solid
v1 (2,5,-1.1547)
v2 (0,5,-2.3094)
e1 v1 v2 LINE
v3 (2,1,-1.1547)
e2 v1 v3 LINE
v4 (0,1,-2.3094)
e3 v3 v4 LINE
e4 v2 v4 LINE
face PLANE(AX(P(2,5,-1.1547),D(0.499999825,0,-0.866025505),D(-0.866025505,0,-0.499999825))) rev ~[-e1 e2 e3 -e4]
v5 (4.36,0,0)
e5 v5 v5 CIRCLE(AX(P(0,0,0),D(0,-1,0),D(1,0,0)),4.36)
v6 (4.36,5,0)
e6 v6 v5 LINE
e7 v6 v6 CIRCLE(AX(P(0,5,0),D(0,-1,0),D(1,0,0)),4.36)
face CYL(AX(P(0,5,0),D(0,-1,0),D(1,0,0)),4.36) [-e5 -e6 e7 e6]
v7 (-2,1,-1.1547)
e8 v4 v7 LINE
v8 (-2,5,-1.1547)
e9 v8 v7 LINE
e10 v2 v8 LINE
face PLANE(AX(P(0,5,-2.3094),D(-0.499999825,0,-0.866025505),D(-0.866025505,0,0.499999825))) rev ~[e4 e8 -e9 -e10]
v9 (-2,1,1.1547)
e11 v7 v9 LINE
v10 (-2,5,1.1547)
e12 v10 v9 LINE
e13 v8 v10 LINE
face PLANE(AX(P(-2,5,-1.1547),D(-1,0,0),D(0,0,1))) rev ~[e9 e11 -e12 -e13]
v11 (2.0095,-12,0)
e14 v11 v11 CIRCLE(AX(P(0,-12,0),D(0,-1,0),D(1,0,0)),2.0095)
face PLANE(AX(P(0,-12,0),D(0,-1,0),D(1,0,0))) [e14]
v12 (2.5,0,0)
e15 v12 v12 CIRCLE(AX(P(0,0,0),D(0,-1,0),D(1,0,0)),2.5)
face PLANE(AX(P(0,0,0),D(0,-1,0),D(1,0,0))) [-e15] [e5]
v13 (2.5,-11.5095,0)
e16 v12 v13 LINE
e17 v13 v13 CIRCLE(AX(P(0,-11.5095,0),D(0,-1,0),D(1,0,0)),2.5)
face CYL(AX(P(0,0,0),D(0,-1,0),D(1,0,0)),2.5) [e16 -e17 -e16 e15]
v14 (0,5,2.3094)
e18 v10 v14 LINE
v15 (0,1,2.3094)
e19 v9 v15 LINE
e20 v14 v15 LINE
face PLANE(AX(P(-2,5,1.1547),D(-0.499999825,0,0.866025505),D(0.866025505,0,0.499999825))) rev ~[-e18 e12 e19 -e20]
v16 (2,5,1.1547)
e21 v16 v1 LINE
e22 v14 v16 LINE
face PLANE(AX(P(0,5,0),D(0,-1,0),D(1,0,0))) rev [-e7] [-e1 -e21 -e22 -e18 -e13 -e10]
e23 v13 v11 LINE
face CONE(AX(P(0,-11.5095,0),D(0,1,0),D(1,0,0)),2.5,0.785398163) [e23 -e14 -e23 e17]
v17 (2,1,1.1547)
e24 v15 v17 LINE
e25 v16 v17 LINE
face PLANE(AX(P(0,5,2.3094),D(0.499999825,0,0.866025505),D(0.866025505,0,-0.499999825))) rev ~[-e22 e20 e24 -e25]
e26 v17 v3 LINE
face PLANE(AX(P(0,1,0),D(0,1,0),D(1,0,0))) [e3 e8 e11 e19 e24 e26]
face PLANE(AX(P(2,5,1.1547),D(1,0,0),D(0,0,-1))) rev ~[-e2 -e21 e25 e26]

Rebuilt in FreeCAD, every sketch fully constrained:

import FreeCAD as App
import Part
import Sketcher
Q = App.Units.Quantity

doc = App.newDocument("Part")
params = doc.addObject("Spreadsheet::Sheet", "Params")
for row, (alias, value) in enumerate([
    ("sketch1_height", "17 mm"),
    ("sketch1_height2", "5 mm"),
    ("sketch1_width", "1.86 mm"),
    ("sketch1_width2", "4.36 mm"),
    ("revolution_angle", "360 deg"),
    ("pocket1_length", "4 mm"),
], start=1):
    params.set(f"A{row}", alias)
    params.set(f"B{row}", "=" + value)
    params.setAlias(f"B{row}", alias)

body = doc.addObject("PartDesign::Body", "Body")

# Sketch on XY plane
sketch1 = doc.addObject("Sketcher::SketchObject", "Sketch")
body.addObject(sketch1)
sketch1.AttachmentSupport = (doc.XY_Plane, [""])
sketch1.MapMode = "FlatFace"
sketch1.addGeometry(Part.LineSegment(App.Vector(0, 5, 0), App.Vector(0, -12, 0)), False)
sketch1.addGeometry(Part.LineSegment(App.Vector(0, -12, 0), App.Vector(2, -12, 0)), False)
sketch1.addGeometry(Part.LineSegment(App.Vector(2, -12, 0), App.Vector(2.5, -11.5, 0)), False)
sketch1.addGeometry(Part.LineSegment(App.Vector(2.5, -11.5, 0), App.Vector(2.5, 0, 0)), False)
sketch1.addGeometry(Part.LineSegment(App.Vector(2.5, 0, 0), App.Vector(4.4, 0, 0)), False)
sketch1.addGeometry(Part.LineSegment(App.Vector(4.4, 0, 0), App.Vector(4.4, 5, 0)), False)
sketch1.addGeometry(Part.LineSegment(App.Vector(4.4, 5, 0), App.Vector(0, 5, 0)), False)
sketch1.addConstraint(Sketcher.Constraint("Coincident", 0, 2, 1, 1))
sketch1.addConstraint(Sketcher.Constraint("Coincident", 1, 2, 2, 1))
sketch1.addConstraint(Sketcher.Constraint("Coincident", 2, 2, 3, 1))
sketch1.addConstraint(Sketcher.Constraint("Coincident", 3, 2, 4, 1))
sketch1.addConstraint(Sketcher.Constraint("Coincident", 4, 2, 5, 1))
sketch1.addConstraint(Sketcher.Constraint("Coincident", 5, 2, 6, 1))
sketch1.addConstraint(Sketcher.Constraint("Coincident", 6, 2, 0, 1))
sketch1.addConstraint(Sketcher.Constraint("Vertical", 0))
sketch1.addConstraint(Sketcher.Constraint("Horizontal", 1))
sketch1.addConstraint(Sketcher.Constraint("Vertical", 3))
sketch1.addConstraint(Sketcher.Constraint("Horizontal", 4))
sketch1.addConstraint(Sketcher.Constraint("Vertical", 5))
sketch1.addConstraint(Sketcher.Constraint("Horizontal", 6))
sketch1.addConstraint(Sketcher.Constraint("PointOnObject", 0, 2, -2))
sketch1.addConstraint(Sketcher.Constraint("PointOnObject", 3, 2, -1))
sketch1.addConstraint(Sketcher.Constraint("DistanceY", 0, 2, 0, 1, Q("17 mm")))
sketch1.addConstraint(Sketcher.Constraint("DistanceY", 5, 1, 5, 2, Q("5 mm")))
sketch1.addConstraint(Sketcher.Constraint("Angle", 2, Q("45 deg")))
sketch1.addConstraint(Sketcher.Constraint("DistanceX", 4, 1, 4, 2, Q("1.86 mm")))
sketch1.addConstraint(Sketcher.Constraint("DistanceX", 6, 2, 6, 1, Q("4.36 mm")))
sketch1.addConstraint(Sketcher.Constraint("DistanceX", 1, 1, 1, 2, Q("2.0095 mm")))
sketch1.setExpression("Constraints[15]", "Params.sketch1_height")
sketch1.setExpression("Constraints[16]", "Params.sketch1_height2")
sketch1.setExpression("Constraints[18]", "Params.sketch1_width")
sketch1.setExpression("Constraints[19]", "Params.sketch1_width2")
revolution = doc.addObject("PartDesign::Revolution", "Revolution")
body.addObject(revolution)
revolution.Profile = sketch1
revolution.ReferenceAxis = (sketch1, ["V_Axis"])
revolution.setExpression("Angle", "Params.revolution_angle")

# Sketch on XZ plane
sketch2 = doc.addObject("Sketcher::SketchObject", "Sketch001")
body.addObject(sketch2)
sketch2.AttachmentSupport = (doc.XZ_Plane, [""])
sketch2.MapMode = "FlatFace"
sketch2.AttachmentOffset = App.Placement(App.Vector(0, 0, -5), App.Rotation())
sketch2.addGeometry(Part.LineSegment(App.Vector(-2, -1.2, 0), App.Vector(-2, 1.2, 0)), False)
sketch2.addGeometry(Part.LineSegment(App.Vector(-2, 1.2, 0), App.Vector(0, 2.3, 0)), False)
sketch2.addGeometry(Part.LineSegment(App.Vector(0, 2.3, 0), App.Vector(2, 1.2, 0)), False)
sketch2.addGeometry(Part.LineSegment(App.Vector(2, 1.2, 0), App.Vector(2, -1.2, 0)), False)
sketch2.addGeometry(Part.LineSegment(App.Vector(2, -1.2, 0), App.Vector(0, -2.3, 0)), False)
sketch2.addGeometry(Part.LineSegment(App.Vector(0, -2.3, 0), App.Vector(-2, -1.2, 0)), False)
sketch2.addConstraint(Sketcher.Constraint("Coincident", 0, 2, 1, 1))
sketch2.addConstraint(Sketcher.Constraint("Coincident", 1, 2, 2, 1))
sketch2.addConstraint(Sketcher.Constraint("Coincident", 2, 2, 3, 1))
sketch2.addConstraint(Sketcher.Constraint("Coincident", 3, 2, 4, 1))
sketch2.addConstraint(Sketcher.Constraint("Coincident", 4, 2, 5, 1))
sketch2.addConstraint(Sketcher.Constraint("Coincident", 5, 2, 0, 1))
sketch2.addConstraint(Sketcher.Constraint("Vertical", 0))
sketch2.addConstraint(Sketcher.Constraint("Vertical", 3))
sketch2.addConstraint(Sketcher.Constraint("Symmetric", 0, 2, 3, 2, -1, 1))
sketch2.addConstraint(Sketcher.Constraint("Symmetric", 1, 2, 4, 2, -1, 1))
sketch2.addConstraint(Sketcher.Constraint("PointOnObject", 1, 2, -2))
sketch2.addConstraint(Sketcher.Constraint("Parallel", 2, 5))
sketch2.addConstraint(Sketcher.Constraint("Horizontal", 0, 2, 2, 2))
sketch2.addConstraint(Sketcher.Constraint("Angle", 1, Q("30 deg")))
sketch2.addConstraint(Sketcher.Constraint("DistanceX", 0, 2, -1, 1, Q("2 mm")))
sketch2.addConstraint(Sketcher.Constraint("DistanceY", 0, 1, 0, 2, Q("2.3094 mm")))
pocket1 = doc.addObject("PartDesign::Pocket", "Pocket")
body.addObject(pocket1)
pocket1.Profile = sketch2
pocket1.setExpression("Length", "Params.pocket1_length")
pocket1.Reversed = True

doc.recompute()
